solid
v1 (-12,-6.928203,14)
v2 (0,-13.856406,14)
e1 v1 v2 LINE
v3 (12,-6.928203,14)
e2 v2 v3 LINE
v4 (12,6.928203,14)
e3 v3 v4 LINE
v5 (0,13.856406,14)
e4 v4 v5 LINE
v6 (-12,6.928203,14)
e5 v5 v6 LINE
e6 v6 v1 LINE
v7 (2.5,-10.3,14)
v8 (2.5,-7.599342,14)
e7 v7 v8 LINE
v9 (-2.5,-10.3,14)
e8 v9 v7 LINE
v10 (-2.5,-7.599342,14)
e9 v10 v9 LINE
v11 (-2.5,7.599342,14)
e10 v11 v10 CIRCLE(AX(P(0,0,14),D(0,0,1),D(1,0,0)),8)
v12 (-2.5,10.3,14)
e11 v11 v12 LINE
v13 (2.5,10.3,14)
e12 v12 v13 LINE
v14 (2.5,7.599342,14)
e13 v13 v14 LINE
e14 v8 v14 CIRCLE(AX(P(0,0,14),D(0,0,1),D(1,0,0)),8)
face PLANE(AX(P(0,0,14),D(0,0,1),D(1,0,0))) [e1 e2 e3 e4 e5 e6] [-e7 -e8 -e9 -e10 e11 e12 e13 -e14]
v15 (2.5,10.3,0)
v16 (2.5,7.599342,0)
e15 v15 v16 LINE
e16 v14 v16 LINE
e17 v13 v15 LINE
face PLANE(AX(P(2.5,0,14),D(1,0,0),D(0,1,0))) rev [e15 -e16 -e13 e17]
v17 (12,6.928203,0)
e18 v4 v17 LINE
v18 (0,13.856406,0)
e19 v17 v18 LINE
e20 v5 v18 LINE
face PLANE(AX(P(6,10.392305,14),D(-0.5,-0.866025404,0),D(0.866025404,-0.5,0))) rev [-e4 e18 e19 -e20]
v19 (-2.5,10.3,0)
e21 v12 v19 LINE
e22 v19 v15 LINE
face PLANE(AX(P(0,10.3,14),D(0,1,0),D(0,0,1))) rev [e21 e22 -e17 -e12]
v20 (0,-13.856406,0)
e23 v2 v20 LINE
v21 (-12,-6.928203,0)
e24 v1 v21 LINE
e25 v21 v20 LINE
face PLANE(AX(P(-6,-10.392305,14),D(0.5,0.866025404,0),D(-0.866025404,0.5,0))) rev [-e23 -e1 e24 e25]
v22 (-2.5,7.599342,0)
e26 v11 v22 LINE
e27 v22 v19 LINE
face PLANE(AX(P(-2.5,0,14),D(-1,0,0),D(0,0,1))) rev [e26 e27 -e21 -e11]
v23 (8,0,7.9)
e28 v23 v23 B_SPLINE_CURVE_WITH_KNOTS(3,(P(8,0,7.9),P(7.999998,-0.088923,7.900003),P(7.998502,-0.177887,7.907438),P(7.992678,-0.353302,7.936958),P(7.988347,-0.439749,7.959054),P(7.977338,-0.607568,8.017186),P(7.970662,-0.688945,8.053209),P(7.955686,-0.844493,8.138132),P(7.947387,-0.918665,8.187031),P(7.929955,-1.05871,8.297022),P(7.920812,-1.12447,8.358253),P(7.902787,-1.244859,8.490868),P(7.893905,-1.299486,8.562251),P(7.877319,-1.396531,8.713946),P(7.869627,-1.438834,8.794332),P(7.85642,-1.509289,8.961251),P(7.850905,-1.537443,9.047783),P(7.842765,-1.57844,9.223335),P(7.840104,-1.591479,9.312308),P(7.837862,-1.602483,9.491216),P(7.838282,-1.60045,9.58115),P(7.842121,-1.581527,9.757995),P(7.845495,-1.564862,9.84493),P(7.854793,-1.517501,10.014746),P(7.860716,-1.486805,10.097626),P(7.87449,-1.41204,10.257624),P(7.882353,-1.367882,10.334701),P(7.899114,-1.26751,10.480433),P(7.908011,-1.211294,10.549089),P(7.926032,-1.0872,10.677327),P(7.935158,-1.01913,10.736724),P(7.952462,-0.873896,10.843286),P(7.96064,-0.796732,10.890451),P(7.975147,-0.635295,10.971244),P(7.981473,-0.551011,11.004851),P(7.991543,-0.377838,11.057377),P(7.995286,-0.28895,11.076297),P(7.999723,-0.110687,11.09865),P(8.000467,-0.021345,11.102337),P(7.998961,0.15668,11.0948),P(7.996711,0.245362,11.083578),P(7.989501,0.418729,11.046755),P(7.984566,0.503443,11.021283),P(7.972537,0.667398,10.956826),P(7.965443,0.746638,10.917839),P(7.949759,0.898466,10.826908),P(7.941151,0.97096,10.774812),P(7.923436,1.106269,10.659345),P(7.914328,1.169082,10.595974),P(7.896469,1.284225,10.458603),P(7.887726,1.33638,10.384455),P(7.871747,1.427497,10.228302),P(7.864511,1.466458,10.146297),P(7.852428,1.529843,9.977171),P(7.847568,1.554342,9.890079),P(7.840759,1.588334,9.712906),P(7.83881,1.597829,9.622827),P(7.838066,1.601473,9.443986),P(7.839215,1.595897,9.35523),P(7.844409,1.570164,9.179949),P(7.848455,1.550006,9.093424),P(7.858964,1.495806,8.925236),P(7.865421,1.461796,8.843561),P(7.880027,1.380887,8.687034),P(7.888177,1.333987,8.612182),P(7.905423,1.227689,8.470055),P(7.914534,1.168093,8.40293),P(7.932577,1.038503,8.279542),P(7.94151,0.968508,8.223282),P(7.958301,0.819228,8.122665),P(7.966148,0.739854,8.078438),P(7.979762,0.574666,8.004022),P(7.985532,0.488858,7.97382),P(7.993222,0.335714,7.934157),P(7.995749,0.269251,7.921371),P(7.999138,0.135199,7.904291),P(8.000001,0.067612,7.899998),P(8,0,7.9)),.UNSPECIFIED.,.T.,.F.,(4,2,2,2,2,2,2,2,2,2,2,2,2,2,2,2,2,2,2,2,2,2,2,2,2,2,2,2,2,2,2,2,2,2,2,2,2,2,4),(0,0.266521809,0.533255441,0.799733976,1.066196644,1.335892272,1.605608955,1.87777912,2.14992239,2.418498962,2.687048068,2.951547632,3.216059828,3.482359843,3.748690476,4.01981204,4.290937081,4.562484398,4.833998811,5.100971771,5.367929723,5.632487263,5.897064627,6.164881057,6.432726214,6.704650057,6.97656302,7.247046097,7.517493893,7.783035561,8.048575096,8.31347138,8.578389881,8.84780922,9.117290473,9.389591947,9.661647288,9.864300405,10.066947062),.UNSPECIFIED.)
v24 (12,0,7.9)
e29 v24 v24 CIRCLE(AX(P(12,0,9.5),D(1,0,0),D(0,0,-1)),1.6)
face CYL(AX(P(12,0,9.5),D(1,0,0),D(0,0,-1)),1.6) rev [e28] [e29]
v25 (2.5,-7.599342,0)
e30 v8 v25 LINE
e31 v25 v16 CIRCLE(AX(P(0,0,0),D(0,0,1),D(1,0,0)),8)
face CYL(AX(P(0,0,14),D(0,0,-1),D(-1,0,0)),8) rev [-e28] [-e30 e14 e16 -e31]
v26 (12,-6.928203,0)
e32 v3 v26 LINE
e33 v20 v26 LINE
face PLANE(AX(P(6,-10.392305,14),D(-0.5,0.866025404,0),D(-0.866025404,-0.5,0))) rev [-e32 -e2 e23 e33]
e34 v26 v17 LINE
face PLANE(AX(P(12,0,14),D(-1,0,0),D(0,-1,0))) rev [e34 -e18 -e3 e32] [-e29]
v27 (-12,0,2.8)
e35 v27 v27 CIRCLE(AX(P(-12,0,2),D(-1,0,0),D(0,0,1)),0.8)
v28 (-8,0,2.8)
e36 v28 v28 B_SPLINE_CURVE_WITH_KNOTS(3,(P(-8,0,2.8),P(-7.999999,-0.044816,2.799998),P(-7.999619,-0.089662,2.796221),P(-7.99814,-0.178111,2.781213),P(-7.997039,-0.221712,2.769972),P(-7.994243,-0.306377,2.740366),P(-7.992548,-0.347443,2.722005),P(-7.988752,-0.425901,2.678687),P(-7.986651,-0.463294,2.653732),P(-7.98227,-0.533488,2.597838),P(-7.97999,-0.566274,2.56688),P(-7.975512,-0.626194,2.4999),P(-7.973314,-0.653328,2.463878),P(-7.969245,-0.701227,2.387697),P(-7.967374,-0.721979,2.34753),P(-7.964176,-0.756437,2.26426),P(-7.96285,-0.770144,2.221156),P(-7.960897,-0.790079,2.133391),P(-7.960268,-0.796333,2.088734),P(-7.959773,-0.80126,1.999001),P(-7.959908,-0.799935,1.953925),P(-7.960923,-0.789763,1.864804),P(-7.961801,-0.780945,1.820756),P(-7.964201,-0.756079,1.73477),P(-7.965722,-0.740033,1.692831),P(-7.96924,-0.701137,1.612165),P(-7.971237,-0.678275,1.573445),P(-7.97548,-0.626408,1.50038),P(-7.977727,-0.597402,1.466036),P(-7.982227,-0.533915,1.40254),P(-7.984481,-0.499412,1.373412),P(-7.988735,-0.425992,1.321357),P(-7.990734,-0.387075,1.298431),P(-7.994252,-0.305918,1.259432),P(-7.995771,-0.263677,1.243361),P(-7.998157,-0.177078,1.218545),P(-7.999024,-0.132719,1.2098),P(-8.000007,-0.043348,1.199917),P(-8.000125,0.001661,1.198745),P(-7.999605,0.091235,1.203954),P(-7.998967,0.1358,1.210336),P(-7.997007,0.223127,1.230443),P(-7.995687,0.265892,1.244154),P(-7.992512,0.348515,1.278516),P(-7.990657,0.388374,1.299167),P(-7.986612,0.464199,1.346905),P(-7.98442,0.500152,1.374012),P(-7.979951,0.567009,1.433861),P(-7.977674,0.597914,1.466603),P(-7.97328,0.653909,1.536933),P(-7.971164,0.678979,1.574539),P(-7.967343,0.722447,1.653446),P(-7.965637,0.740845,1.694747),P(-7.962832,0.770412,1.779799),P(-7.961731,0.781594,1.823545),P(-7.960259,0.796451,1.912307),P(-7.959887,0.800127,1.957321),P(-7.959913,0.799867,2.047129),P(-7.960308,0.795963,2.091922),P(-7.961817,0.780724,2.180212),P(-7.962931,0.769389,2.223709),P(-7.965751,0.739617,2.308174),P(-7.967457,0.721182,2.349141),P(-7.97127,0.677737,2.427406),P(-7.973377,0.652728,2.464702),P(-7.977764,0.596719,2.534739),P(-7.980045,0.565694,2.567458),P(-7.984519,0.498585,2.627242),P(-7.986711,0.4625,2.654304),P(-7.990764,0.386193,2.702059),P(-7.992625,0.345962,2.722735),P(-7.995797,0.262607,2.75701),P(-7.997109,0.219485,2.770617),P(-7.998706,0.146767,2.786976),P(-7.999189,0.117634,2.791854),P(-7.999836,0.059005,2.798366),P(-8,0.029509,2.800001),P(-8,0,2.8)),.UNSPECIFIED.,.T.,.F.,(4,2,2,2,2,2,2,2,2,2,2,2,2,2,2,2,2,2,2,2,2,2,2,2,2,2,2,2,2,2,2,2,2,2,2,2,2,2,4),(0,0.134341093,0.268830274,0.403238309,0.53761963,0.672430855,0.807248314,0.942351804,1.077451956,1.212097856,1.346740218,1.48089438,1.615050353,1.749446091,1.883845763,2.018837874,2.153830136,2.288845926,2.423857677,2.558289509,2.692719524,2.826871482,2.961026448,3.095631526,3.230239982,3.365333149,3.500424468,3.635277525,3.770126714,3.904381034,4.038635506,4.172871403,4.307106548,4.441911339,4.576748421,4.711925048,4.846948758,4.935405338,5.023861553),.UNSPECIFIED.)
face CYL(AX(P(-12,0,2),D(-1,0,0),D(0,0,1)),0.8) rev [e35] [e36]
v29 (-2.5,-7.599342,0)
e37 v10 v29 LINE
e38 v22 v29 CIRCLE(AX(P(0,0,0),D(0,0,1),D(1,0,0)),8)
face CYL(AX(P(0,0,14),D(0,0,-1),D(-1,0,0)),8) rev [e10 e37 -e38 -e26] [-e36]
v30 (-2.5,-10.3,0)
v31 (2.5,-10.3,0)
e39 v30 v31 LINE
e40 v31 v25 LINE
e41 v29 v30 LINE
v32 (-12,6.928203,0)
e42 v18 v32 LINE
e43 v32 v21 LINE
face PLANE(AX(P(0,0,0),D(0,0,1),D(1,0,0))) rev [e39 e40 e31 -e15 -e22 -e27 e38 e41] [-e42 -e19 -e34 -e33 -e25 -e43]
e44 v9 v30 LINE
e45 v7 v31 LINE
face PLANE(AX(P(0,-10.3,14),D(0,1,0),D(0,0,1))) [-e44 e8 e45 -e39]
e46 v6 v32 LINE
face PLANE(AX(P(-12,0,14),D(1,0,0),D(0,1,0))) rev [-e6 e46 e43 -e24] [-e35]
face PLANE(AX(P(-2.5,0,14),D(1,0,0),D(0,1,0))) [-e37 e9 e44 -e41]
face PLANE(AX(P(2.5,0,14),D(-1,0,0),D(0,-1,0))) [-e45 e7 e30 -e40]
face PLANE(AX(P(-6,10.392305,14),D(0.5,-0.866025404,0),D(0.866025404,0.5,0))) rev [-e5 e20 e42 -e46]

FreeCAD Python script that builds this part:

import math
import FreeCAD as App
import Part
import Sketcher
from FreeCAD import Vector
Q = App.Units.Quantity

doc = App.newDocument("Part")
params = doc.addObject("Spreadsheet::Sheet", "Params")
for row, (alias, value) in enumerate([
    ("sketch1_radius", "8 mm"),
    ("sketch1_width", "5 mm"),
    ("pad1_length", "14 mm"),
    ("sketch2_diameter", "3.2 mm"),
    ("sketch3_diameter", "1.6 mm"),
], start=1):
    params.set(f"A{row}", alias)
    params.set(f"B{row}", "=" + value)
    params.setAlias(f"B{row}", alias)

body = doc.addObject("PartDesign::Body", "Body")

# Sketch on XY plane
sketch1 = body.newObject("Sketcher::SketchObject", "Sketch")
sketch1.AttachmentSupport = (doc.getObject("XY_Plane"), [""])
sketch1.MapMode = "FlatFace"
sketch1.addGeometry(Part.LineSegment(Vector(12, 6.928203, 0), Vector(0, 13.856406, 0)), False)
sketch1.addGeometry(Part.LineSegment(Vector(0, 13.856406, 0), Vector(-12, 6.928203, 0)), False)
sketch1.addGeometry(Part.LineSegment(Vector(-12, 6.928203, 0), Vector(-12, -6.928203, 0)), False)
sketch1.addGeometry(Part.LineSegment(Vector(-12, -6.928203, 0), Vector(0, -13.856406, 0)), False)
sketch1.addGeometry(Part.LineSegment(Vector(0, -13.856406, 0), Vector(12, -6.928203, 0)), False)
sketch1.addGeometry(Part.LineSegment(Vector(12, -6.928203, 0), Vector(12, 6.928203, 0)), False)
sketch1.addGeometry(Part.LineSegment(Vector(-2.5, -10.3, 0), Vector(-2.5, -7.599342, 0)), False)
sketch1.addGeometry(Part.ArcOfCircle(Part.Circle(Vector(0, 0, 0), Vector(0, 0, 1), 8), math.radians(108.209957), math.radians(251.790043)), False)
sketch1.addGeometry(Part.LineSegment(Vector(-2.5, 7.599342, 0), Vector(-2.5, 10.3, 0)), False)
sketch1.addGeometry(Part.LineSegment(Vector(-2.5, 10.3, 0), Vector(2.5, 10.3, 0)), False)
sketch1.addGeometry(Part.LineSegment(Vector(2.5, 10.3, 0), Vector(2.5, 7.599342, 0)), False)
sketch1.addGeometry(Part.ArcOfCircle(Part.Circle(Vector(0, 0, 0), Vector(0, 0, 1), 8), math.radians(0), math.radians(71.790043)), False)
sketch1.addGeometry(Part.ArcOfCircle(Part.Circle(Vector(0, 0, 0), Vector(0, 0, 1), 8), math.radians(-71.790043), math.radians(0)), False)
sketch1.addGeometry(Part.LineSegment(Vector(2.5, -7.599342, 0), Vector(2.5, -10.3, 0)), False)
sketch1.addGeometry(Part.LineSegment(Vector(2.5, -10.3, 0), Vector(-2.5, -10.3, 0)), False)
sketch1.addConstraint(Sketcher.Constraint("Coincident", 0, 2, 1, 1))
sketch1.addConstraint(Sketcher.Constraint("Coincident", 1, 2, 2, 1))
sketch1.addConstraint(Sketcher.Constraint("Coincident", 2, 2, 3, 1))
sketch1.addConstraint(Sketcher.Constraint("Coincident", 3, 2, 4, 1))
sketch1.addConstraint(Sketcher.Constraint("Coincident", 4, 2, 5, 1))
sketch1.addConstraint(Sketcher.Constraint("Coincident", 5, 2, 0, 1))
sketch1.addConstraint(Sketcher.Constraint("Coincident", 6, 2, 7, 2))
sketch1.addConstraint(Sketcher.Constraint("Coincident", 7, 1, 8, 1))
sketch1.addConstraint(Sketcher.Constraint("Coincident", 8, 2, 9, 1))
sketch1.addConstraint(Sketcher.Constraint("Coincident", 9, 2, 10, 1))
sketch1.addConstraint(Sketcher.Constraint("Coincident", 10, 2, 11, 2))
sketch1.addConstraint(Sketcher.Constraint("Tangent", 11, 1, 12, 2))
sketch1.addConstraint(Sketcher.Constraint("Coincident", 12, 1, 13, 1))
sketch1.addConstraint(Sketcher.Constraint("Coincident", 13, 2, 14, 1))
sketch1.addConstraint(Sketcher.Constraint("Coincident", 14, 2, 6, 1))
sketch1.addConstraint(Sketcher.Constraint("Vertical", 2))
sketch1.addConstraint(Sketcher.Constraint("Vertical", 5))
sketch1.addConstraint(Sketcher.Constraint("Vertical", 6))
sketch1.addConstraint(Sketcher.Constraint("Vertical", 8))
sketch1.addConstraint(Sketcher.Constraint("Horizontal", 9))
sketch1.addConstraint(Sketcher.Constraint("Vertical", 10))
sketch1.addConstraint(Sketcher.Constraint("Vertical", 13))
sketch1.addConstraint(Sketcher.Constraint("Horizontal", 14))
sketch1.addConstraint(Sketcher.Constraint("Coincident", 7, 3, -1, 1))
sketch1.addConstraint(Sketcher.Constraint("Coincident", 11, 3, -1, 1))
sketch1.addConstraint(Sketcher.Constraint("Equal", 7, 11))
sketch1.addConstraint(Sketcher.Constraint("Equal", 11, 12))
sketch1.addConstraint(Sketcher.Constraint("Symmetric", 0, 2, 3, 2, -1, 1))
sketch1.addConstraint(Sketcher.Constraint("Symmetric", 1, 2, 4, 2, -1, 1))
sketch1.addConstraint(Sketcher.Constraint("Symmetric", 8, 2, 13, 2, -1, 1))
sketch1.addConstraint(Sketcher.Constraint("PointOnObject", 0, 2, -2))
sketch1.addConstraint(Sketcher.Constraint("PointOnObject", 11, 1, -1))
sketch1.addConstraint(Sketcher.Constraint("Parallel", 0, 3))
sketch1.addConstraint(Sketcher.Constraint("Horizontal", 2, 2, 4, 2))
sketch1.addConstraint(Sketcher.Constraint("Horizontal", 7, 1, 10, 2))
sketch1.addConstraint(Sketcher.Constraint("Horizontal", 6, 2, 12, 1))
sketch1.addConstraint(Sketcher.Constraint("Radius", 7, 8.0))
sketch1.addConstraint(Sketcher.Constraint("DistanceX", 9, 1, 9, 2, 5.0))
sketch1.addConstraint(Sketcher.Constraint("Angle", 0, Q("150 deg")))
sketch1.addConstraint(Sketcher.Constraint("DistanceX", 1, 2, -1, 1, 12.0))
sketch1.addConstraint(Sketcher.Constraint("DistanceY", -1, 1, 8, 2, 10.3))
sketch1.addConstraint(Sketcher.Constraint("DistanceY", 2, 2, 2, 1, 13.856406))
sketch1.setExpression("Constraints[36]", "Params.sketch1_radius")
sketch1.setExpression("Constraints[37]", "Params.sketch1_width")
pad1 = body.newObject("PartDesign::Pad", "Pad")
pad1.Profile = sketch1
pad1.setExpression("Length", "Params.pad1_length")

# Sketch on YZ plane
sketch2 = body.newObject("Sketcher::SketchObject", "Sketch001")
sketch2.AttachmentSupport = (doc.getObject("YZ_Plane"), [""])
sketch2.MapMode = "FlatFace"
sketch2.AttachmentOffset = App.Placement(Vector(0, 0, 12), App.Rotation())
sketch2.addGeometry(Part.Circle(Vector(0, 9.5, 0), Vector(0, 0, 1), 1.6), False)
sketch2.addConstraint(Sketcher.Constraint("PointOnObject", 0, 3, -2))
sketch2.addConstraint(Sketcher.Constraint("Diameter", 0, 3.2))
sketch2.addConstraint(Sketcher.Constraint("DistanceY", -1, 1, 0, 3, 9.5))
sketch2.setExpression("Constraints[1]", "Params.sketch2_diameter")
pocket1 = body.newObject("PartDesign::Pocket", "Pocket")
pocket1.Profile = sketch2
pocket1.Type = "UpToFirst"

# Sketch on YZ plane
sketch3 = body.newObject("Sketcher::SketchObject", "Sketch002")
sketch3.AttachmentSupport = (doc.getObject("YZ_Plane"), [""])
sketch3.MapMode = "FlatFace"
sketch3.AttachmentOffset = App.Placement(Vector(0, 0, -12), App.Rotation())
sketch3.addGeometry(Part.Circle(Vector(0, 2, 0), Vector(0, 0, 1), 0.8), False)
sketch3.addConstraint(Sketcher.Constraint("PointOnObject", 0, 3, -2))
sketch3.addConstraint(Sketcher.Constraint("Diameter", 0, 1.6))
sketch3.addConstraint(Sketcher.Constraint("DistanceY", -1, 1, 0, 3, 2.0))
sketch3.setExpression("Constraints[1]", "Params.sketch3_diameter")
pocket2 = body.newObject("PartDesign::Pocket", "Pocket001")
pocket2.Profile = sketch3
pocket2.Type = "UpToFirst"
pocket2.Reversed = True

doc.recompute()
